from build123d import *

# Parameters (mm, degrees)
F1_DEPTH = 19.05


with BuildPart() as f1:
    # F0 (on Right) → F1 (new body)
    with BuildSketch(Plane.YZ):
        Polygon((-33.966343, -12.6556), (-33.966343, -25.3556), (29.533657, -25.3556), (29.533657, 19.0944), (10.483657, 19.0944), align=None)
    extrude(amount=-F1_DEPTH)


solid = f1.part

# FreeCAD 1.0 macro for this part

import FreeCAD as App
import Part
import Sketcher
from FreeCAD import Vector
Q = App.Units.Quantity

doc = App.newDocument("Part")
body = doc.addObject("PartDesign::Body", "Body")

# Sketch on YZ plane
sketch1 = doc.addObject("Sketcher::SketchObject", "Sketch")
body.addObject(sketch1)
sketch1.AttachmentSupport = (doc.YZ_Plane, [""])
sketch1.MapMode = "FlatFace"
sketch1.addGeometry(Part.LineSegment(Vector(-34, -13, 0), Vector(-34, -25, 0)), False)
sketch1.addGeometry(Part.LineSegment(Vector(-34, -25, 0), Vector(30, -25, 0)), False)
sketch1.addGeometry(Part.LineSegment(Vector(30, -25, 0), Vector(30, 19, 0)), False)
sketch1.addGeometry(Part.LineSegment(Vector(30, 19, 0), Vector(10, 19, 0)), False)
sketch1.addGeometry(Part.LineSegment(Vector(10, 19, 0), Vector(-34, -13, 0)), False)
sketch1.addConstraint(Sketcher.Constraint("Coincident", 0, 2, 1, 1))
sketch1.addConstraint(Sketcher.Constraint("Coincident", 1, 2, 2, 1))
sketch1.addConstraint(Sketcher.Constraint("Coincident", 2, 2, 3, 1))
sketch1.addConstraint(Sketcher.Constraint("Coincident", 3, 2, 4, 1))
sketch1.addConstraint(Sketcher.Constraint("Coincident", 4, 2, 0, 1))
sketch1.addConstraint(Sketcher.Constraint("Vertical", 0))
sketch1.addConstraint(Sketcher.Constraint("Horizontal", 1))
sketch1.addConstraint(Sketcher.Constraint("Vertical", 2))
sketch1.addConstraint(Sketcher.Constraint("Horizontal", 3))
sketch1.addConstraint(Sketcher.Constraint("DistanceX", 1, 1, 1, 2, Q("2.5 in")))
sketch1.addConstraint(Sketcher.Constraint("DistanceY", 0, 2, 0, 1, Q("0.5 in")))
sketch1.addConstraint(Sketcher.Constraint("DistanceX", 3, 2, 3, 1, Q("0.75 in")))
sketch1.addConstraint(Sketcher.Constraint("DistanceY", 2, 1, 2, 2, Q("1.75 in")))
sketch1.addConstraint(Sketcher.Constraint("DistanceY", 0, 2, -1, 1, 25.3556))
sketch1.addConstraint(Sketcher.Constraint("DistanceX", 0, 2, -1, 1, 33.966343))
pad1 = doc.addObject("PartDesign::Pad", "Pad")
body.addObject(pad1)
pad1.Profile = sketch1
pad1.Length = Q("0.75 in")
pad1.Reversed = True

doc.recompute()
